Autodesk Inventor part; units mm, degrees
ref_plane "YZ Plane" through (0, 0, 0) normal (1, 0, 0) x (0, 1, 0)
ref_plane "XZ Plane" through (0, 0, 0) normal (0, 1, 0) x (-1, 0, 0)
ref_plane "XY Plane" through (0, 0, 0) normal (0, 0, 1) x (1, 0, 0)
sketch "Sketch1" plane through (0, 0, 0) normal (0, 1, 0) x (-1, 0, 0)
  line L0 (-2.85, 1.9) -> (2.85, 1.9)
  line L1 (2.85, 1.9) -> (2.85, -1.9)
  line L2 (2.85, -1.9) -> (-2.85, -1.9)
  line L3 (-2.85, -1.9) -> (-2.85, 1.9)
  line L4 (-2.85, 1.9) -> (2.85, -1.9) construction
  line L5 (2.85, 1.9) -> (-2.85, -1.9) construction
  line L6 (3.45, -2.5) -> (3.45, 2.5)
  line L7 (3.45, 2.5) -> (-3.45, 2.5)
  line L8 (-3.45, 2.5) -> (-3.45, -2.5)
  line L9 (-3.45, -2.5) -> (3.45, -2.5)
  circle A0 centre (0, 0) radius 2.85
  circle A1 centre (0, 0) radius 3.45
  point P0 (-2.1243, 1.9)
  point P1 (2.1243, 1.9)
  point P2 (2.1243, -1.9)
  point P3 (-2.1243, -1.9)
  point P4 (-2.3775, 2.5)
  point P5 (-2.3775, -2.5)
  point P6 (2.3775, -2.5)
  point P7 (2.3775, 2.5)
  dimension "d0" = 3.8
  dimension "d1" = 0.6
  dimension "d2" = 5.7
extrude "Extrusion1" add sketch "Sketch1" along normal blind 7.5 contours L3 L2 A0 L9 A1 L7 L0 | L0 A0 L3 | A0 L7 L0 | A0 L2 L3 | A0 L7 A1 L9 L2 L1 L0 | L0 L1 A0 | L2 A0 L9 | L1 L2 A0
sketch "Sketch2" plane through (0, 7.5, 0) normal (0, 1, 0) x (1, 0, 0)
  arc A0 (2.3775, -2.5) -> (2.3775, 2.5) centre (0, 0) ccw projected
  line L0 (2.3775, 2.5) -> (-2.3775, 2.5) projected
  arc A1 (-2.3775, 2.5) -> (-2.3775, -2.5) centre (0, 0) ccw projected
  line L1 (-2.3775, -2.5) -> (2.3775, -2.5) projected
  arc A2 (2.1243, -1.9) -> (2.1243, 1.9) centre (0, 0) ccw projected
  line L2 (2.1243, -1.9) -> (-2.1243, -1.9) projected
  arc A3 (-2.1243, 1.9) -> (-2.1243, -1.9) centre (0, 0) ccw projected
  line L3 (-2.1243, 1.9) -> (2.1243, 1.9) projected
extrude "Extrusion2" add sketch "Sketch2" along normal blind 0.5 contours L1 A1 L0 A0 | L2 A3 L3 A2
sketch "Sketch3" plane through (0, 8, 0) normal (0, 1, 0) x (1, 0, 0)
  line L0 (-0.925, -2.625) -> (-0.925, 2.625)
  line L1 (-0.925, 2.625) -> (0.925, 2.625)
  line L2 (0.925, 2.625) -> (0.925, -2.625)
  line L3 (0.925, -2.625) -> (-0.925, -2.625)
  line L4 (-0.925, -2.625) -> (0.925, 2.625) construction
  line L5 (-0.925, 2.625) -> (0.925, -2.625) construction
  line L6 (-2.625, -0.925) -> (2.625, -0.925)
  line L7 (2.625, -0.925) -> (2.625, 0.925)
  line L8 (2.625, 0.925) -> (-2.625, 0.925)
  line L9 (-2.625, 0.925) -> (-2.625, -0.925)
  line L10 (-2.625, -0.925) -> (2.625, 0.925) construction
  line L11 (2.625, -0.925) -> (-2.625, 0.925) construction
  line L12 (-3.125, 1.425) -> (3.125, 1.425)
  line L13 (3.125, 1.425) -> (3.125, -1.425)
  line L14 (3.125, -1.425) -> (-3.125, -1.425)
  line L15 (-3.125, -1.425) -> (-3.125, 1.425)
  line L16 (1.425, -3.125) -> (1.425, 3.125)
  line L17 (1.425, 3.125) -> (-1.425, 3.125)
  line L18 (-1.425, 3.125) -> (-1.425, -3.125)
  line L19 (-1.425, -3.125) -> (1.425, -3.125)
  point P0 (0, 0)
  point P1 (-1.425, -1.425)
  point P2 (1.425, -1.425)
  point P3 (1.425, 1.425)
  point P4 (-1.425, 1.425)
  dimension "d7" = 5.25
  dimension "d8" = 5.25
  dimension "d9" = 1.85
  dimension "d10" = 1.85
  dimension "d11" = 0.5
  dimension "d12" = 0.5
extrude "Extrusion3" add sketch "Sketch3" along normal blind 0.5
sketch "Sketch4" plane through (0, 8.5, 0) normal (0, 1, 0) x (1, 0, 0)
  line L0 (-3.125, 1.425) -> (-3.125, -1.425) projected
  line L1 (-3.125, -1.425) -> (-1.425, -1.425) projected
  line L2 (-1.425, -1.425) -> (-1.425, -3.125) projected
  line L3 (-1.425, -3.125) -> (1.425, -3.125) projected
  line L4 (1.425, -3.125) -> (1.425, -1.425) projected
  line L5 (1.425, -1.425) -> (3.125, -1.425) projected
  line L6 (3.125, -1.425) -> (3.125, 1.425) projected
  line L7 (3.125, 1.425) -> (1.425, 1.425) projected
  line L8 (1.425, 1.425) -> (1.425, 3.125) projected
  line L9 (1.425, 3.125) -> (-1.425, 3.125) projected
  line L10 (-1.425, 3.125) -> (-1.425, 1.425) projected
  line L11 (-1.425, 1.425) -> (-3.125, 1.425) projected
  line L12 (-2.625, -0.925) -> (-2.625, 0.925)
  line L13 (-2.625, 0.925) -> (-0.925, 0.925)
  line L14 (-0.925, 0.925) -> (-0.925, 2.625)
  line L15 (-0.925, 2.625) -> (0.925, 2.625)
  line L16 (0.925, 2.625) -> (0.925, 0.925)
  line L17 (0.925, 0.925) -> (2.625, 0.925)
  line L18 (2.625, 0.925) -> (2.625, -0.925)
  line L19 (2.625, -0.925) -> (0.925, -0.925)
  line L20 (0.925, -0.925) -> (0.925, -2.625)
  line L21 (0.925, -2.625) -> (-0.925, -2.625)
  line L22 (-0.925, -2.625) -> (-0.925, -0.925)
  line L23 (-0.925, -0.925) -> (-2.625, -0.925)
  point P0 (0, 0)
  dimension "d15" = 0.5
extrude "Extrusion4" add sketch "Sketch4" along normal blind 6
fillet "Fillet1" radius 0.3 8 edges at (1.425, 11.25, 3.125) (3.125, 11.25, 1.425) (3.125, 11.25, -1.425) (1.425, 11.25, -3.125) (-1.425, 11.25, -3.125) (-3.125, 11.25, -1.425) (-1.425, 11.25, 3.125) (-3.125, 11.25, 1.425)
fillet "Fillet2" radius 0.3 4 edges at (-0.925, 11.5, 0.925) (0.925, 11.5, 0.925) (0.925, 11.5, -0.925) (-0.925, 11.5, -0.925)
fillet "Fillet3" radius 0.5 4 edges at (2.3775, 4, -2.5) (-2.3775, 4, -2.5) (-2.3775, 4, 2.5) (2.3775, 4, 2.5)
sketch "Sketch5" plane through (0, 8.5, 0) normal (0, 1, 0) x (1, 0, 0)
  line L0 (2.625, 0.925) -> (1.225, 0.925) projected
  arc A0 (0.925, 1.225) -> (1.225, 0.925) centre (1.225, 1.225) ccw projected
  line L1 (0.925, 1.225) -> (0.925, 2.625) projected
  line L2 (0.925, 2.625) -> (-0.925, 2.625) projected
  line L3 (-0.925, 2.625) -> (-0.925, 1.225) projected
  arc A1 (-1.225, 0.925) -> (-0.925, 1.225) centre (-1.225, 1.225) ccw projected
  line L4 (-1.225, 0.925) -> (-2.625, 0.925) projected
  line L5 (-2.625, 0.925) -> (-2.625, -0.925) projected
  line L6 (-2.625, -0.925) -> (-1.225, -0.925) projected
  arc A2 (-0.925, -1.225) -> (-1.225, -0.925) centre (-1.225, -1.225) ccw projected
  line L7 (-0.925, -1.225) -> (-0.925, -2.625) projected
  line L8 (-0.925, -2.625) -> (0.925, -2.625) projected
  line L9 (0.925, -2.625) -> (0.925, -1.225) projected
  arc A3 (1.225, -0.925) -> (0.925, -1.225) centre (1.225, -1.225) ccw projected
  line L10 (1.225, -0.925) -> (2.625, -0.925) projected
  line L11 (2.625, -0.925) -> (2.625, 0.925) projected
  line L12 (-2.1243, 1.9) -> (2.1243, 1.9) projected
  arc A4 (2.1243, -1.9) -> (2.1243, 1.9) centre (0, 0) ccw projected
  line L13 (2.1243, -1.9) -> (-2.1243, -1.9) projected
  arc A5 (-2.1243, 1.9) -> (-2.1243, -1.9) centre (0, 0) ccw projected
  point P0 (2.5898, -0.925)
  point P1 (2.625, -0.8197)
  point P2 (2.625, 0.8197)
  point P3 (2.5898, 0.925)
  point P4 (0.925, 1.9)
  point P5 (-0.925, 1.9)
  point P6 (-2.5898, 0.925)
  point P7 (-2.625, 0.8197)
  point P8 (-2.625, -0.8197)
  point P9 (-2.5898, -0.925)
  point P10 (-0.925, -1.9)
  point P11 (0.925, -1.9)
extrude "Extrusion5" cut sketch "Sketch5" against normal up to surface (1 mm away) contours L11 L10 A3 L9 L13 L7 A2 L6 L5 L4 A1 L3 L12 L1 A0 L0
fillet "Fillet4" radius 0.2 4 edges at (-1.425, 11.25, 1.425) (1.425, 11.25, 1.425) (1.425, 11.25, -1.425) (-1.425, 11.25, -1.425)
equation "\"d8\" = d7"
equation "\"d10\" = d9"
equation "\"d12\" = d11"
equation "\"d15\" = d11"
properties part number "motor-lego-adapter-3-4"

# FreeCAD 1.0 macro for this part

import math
import FreeCAD as App
import Part
import Sketcher


def edges_at(feature, points):
    """Names of the edges that pass closest to the given points."""
    edges = feature.Shape.Edges
    near = lambda p: min(range(len(edges)), key=lambda i: edges[i].distToShape(Part.Vertex(*p))[0])
    return sorted({f"Edge{near(p) + 1}" for p in points})


def add_polygon(sketch, points):
    """Adds a closed chain of lines whose ends are joined by coincident constraints."""
    first, n = sketch.GeometryCount, len(points)
    for a, b in zip(points, points[1:] + points[:1]):
        sketch.addGeometry(Part.LineSegment(App.Vector(*a, 0), App.Vector(*b, 0)), False)
    for i in range(n):
        sketch.addConstraint(Sketcher.Constraint("Coincident", first + i, 2, first + (i + 1) % n, 1))

doc = App.newDocument("Part")
body = doc.addObject("PartDesign::Body", "Body")

# Sketch on XZ plane
sketch1 = body.newObject("Sketcher::SketchObject", "Sketch")
sketch1.AttachmentSupport = (doc.getObject("XZ_Plane"), [""])
sketch1.MapMode = "FlatFace"
sketch1.addGeometry(Part.LineSegment(App.Vector(2.4, -2.5, 0), App.Vector(-2.4, -2.5, 0)), False)
sketch1.addGeometry(Part.ArcOfCircle(Part.Circle(App.Vector(0, 0, 0), App.Vector(0, 0, 1), 3.5), math.radians(134), math.radians(226)), False)
sketch1.addGeometry(Part.LineSegment(App.Vector(-2.4, 2.5, 0), App.Vector(2.4, 2.5, 0)), False)
sketch1.addGeometry(Part.ArcOfCircle(Part.Circle(App.Vector(0, 0, 0), App.Vector(0, 0, 1), 3.5), math.radians(-46), math.radians(46)), False)
sketch1.addGeometry(Part.LineSegment(App.Vector(2.1, 1.9, 0), App.Vector(-2.1, 1.9, 0)), False)
sketch1.addGeometry(Part.ArcOfCircle(Part.Circle(App.Vector(0, 0, 0), App.Vector(0, 0, 1), 2.9), math.radians(138), math.radians(222)), False)
sketch1.addGeometry(Part.LineSegment(App.Vector(-2.1, -1.9, 0), App.Vector(2.1, -1.9, 0)), False)
sketch1.addGeometry(Part.ArcOfCircle(Part.Circle(App.Vector(0, 0, 0), App.Vector(0, 0, 1), 2.9), math.radians(-42), math.radians(42)), False)
sketch1.addConstraint(Sketcher.Constraint("Coincident", 0, 2, 1, 2))
sketch1.addConstraint(Sketcher.Constraint("Coincident", 1, 1, 2, 1))
sketch1.addConstraint(Sketcher.Constraint("Coincident", 2, 2, 3, 2))
sketch1.addConstraint(Sketcher.Constraint("Coincident", 3, 1, 0, 1))
sketch1.addConstraint(Sketcher.Constraint("Coincident", 4, 2, 5, 1))
sketch1.addConstraint(Sketcher.Constraint("Coincident", 5, 2, 6, 1))
sketch1.addConstraint(Sketcher.Constraint("Coincident", 6, 2, 7, 1))
sketch1.addConstraint(Sketcher.Constraint("Coincident", 7, 2, 4, 1))
sketch1.addConstraint(Sketcher.Constraint("Horizontal", 0))
sketch1.addConstraint(Sketcher.Constraint("Horizontal", 2))
sketch1.addConstraint(Sketcher.Constraint("Horizontal", 4))
sketch1.addConstraint(Sketcher.Constraint("Horizontal", 6))
sketch1.addConstraint(Sketcher.Constraint("Coincident", 1, 3, -1, 1))
sketch1.addConstraint(Sketcher.Constraint("Coincident", 3, 3, -1, 1))
sketch1.addConstraint(Sketcher.Constraint("Coincident", 5, 3, -1, 1))
sketch1.addConstraint(Sketcher.Constraint("Coincident", 7, 3, -1, 1))
sketch1.addConstraint(Sketcher.Constraint("Equal", 1, 3))
sketch1.addConstraint(Sketcher.Constraint("Equal", 5, 7))
sketch1.addConstraint(Sketcher.Constraint("Vertical", 0, 2, 1, 1))
sketch1.addConstraint(Sketcher.Constraint("Vertical", 4, 2, 5, 2))
sketch1.addConstraint(Sketcher.Constraint("Radius", 5, 2.85))
sketch1.addConstraint(Sketcher.Constraint("DistanceY", 4, 2, 1, 1, 0.6))
sketch1.addConstraint(Sketcher.Constraint("Radius", 1, 3.45))
sketch1.addConstraint(Sketcher.Constraint("DistanceY", 0, 2, 1, 1, 5.0))
pad1 = body.newObject("PartDesign::Pad", "Pad")
pad1.Profile = sketch1
pad1.Length = 7.5
pad1.Reversed = True

# Sketch on XZ plane
sketch2 = body.newObject("Sketcher::SketchObject", "Sketch001")
sketch2.AttachmentSupport = (doc.getObject("XZ_Plane"), [""])
sketch2.MapMode = "FlatFace"
sketch2.AttachmentOffset = App.Placement(App.Vector(0, 0, -7.5), App.Rotation())
sketch2.addGeometry(Part.LineSegment(App.Vector(-2.4, 2.5, 0), App.Vector(2.4, 2.5, 0)), False)
sketch2.addGeometry(Part.ArcOfCircle(Part.Circle(App.Vector(0, 0, 0), App.Vector(0, 0, 1), 3.5), math.radians(-46), math.radians(46)), False)
sketch2.addGeometry(Part.LineSegment(App.Vector(2.4, -2.5, 0), App.Vector(-2.4, -2.5, 0)), False)
sketch2.addGeometry(Part.ArcOfCircle(Part.Circle(App.Vector(0, 0, 0), App.Vector(0, 0, 1), 3.5), math.radians(134), math.radians(226)), False)
sketch2.addConstraint(Sketcher.Constraint("Coincident", 0, 2, 1, 2))
sketch2.addConstraint(Sketcher.Constraint("Coincident", 1, 1, 2, 1))
sketch2.addConstraint(Sketcher.Constraint("Coincident", 2, 2, 3, 2))
sketch2.addConstraint(Sketcher.Constraint("Coincident", 3, 1, 0, 1))
sketch2.addConstraint(Sketcher.Constraint("Horizontal", 0))
sketch2.addConstraint(Sketcher.Constraint("Horizontal", 2))
sketch2.addConstraint(Sketcher.Constraint("Coincident", 1, 3, -1, 1))
sketch2.addConstraint(Sketcher.Constraint("Coincident", 3, 3, -1, 1))
sketch2.addConstraint(Sketcher.Constraint("Equal", 1, 3))
sketch2.addConstraint(Sketcher.Constraint("Vertical", 0, 2, 1, 1))
sketch2.addConstraint(Sketcher.Constraint("Radius", 1, 3.45))
sketch2.addConstraint(Sketcher.Constraint("DistanceY", 1, 1, 0, 2, 5.0))
pad2 = body.newObject("PartDesign::Pad", "Pad001")
pad2.Profile = sketch2
pad2.Length = 0.5
pad2.Reversed = True

# Sketch on XZ plane
sketch3 = body.newObject("Sketcher::SketchObject", "Sketch002")
sketch3.AttachmentSupport = (doc.getObject("XZ_Plane"), [""])
sketch3.MapMode = "FlatFace"
sketch3.AttachmentOffset = App.Placement(App.Vector(0, 0, -8), App.Rotation())
add_polygon(sketch3, [(1.4, 3.1), (1.4, 1.4), (3.1, 1.4), (3.1, -1.4), (1.4, -1.4), (1.4, -3.1), (-1.4, -3.1), (-1.4, -1.4), (-3.1, -1.4), (-3.1, 1.4), (-1.4, 1.4), (-1.4, 3.1)])  # lines 0-11
sketch3.addConstraint(Sketcher.Constraint("Vertical", 0))
sketch3.addConstraint(Sketcher.Constraint("Horizontal", 1))
sketch3.addConstraint(Sketcher.Constraint("Vertical", 2))
sketch3.addConstraint(Sketcher.Constraint("Horizontal", 3))
sketch3.addConstraint(Sketcher.Constraint("Vertical", 4))
sketch3.addConstraint(Sketcher.Constraint("Horizontal", 5))
sketch3.addConstraint(Sketcher.Constraint("Vertical", 6))
sketch3.addConstraint(Sketcher.Constraint("Horizontal", 7))
sketch3.addConstraint(Sketcher.Constraint("Vertical", 8))
sketch3.addConstraint(Sketcher.Constraint("Horizontal", 9))
sketch3.addConstraint(Sketcher.Constraint("Vertical", 10))
sketch3.addConstraint(Sketcher.Constraint("Horizontal", 11))
sketch3.addConstraint(Sketcher.Constraint("Symmetric", 0, 2, 6, 2, -1, 1))
sketch3.addConstraint(Sketcher.Constraint("Symmetric", 2, 2, 8, 2, -1, 1))
sketch3.addConstraint(Sketcher.Constraint("Symmetric", 4, 2, 10, 2, -1, 1))
sketch3.addConstraint(Sketcher.Constraint("Symmetric", 3, 2, 6, 2, -2))
sketch3.addConstraint(Sketcher.Constraint("Equal", 9, 0))
sketch3.addConstraint(Sketcher.Constraint("Equal", 11, 2))
sketch3.addConstraint(Sketcher.Constraint("DistanceX", 1, 1, 1, 2, 1.7))
sketch3.addConstraint(Sketcher.Constraint("DistanceX", 5, 2, 5, 1, 2.85))
pad3 = body.newObject("PartDesign::Pad", "Pad002")
pad3.Profile = sketch3
pad3.Length = 0.5
pad3.Reversed = True

# Sketch on XZ plane
sketch4 = body.newObject("Sketcher::SketchObject", "Sketch003")
sketch4.AttachmentSupport = (doc.getObject("XZ_Plane"), [""])
sketch4.MapMode = "FlatFace"
sketch4.AttachmentOffset = App.Placement(App.Vector(0, 0, -8.5), App.Rotation())
add_polygon(sketch4, [(-1.4, -1.4), (-3.1, -1.4), (-3.1, 1.4), (-1.4, 1.4), (-1.4, 3.1), (1.4, 3.1), (1.4, 1.4), (3.1, 1.4), (3.1, -1.4), (1.4, -1.4), (1.4, -3.1), (-1.4, -3.1)])  # lines 0-11
add_polygon(sketch4, [(-0.9, 0.9), (-2.6, 0.9), (-2.6, -0.9), (-0.9, -0.9), (-0.9, -2.6), (0.9, -2.6), (0.9, -0.9), (2.6, -0.9), (2.6, 0.9), (0.9, 0.9), (0.9, 2.6), (-0.9, 2.6)])  # lines 12-23
sketch4.addConstraint(Sketcher.Constraint("Horizontal", 0))
sketch4.addConstraint(Sketcher.Constraint("Vertical", 1))
sketch4.addConstraint(Sketcher.Constraint("Horizontal", 2))
sketch4.addConstraint(Sketcher.Constraint("Vertical", 3))
sketch4.addConstraint(Sketcher.Constraint("Horizontal", 4))
sketch4.addConstraint(Sketcher.Constraint("Vertical", 5))
sketch4.addConstraint(Sketcher.Constraint("Horizontal", 6))
sketch4.addConstraint(Sketcher.Constraint("Vertical", 7))
sketch4.addConstraint(Sketcher.Constraint("Horizontal", 8))
sketch4.addConstraint(Sketcher.Constraint("Vertical", 9))
sketch4.addConstraint(Sketcher.Constraint("Horizontal", 10))
sketch4.addConstraint(Sketcher.Constraint("Vertical", 11))
sketch4.addConstraint(Sketcher.Constraint("Horizontal", 12))
sketch4.addConstraint(Sketcher.Constraint("Vertical", 13))
sketch4.addConstraint(Sketcher.Constraint("Horizontal", 14))
sketch4.addConstraint(Sketcher.Constraint("Vertical", 15))
sketch4.addConstraint(Sketcher.Constraint("Horizontal", 16))
sketch4.addConstraint(Sketcher.Constraint("Vertical", 17))
sketch4.addConstraint(Sketcher.Constraint("Horizontal", 18))
sketch4.addConstraint(Sketcher.Constraint("Vertical", 19))
sketch4.addConstraint(Sketcher.Constraint("Horizontal", 20))
sketch4.addConstraint(Sketcher.Constraint("Vertical", 21))
sketch4.addConstraint(Sketcher.Constraint("Horizontal", 22))
sketch4.addConstraint(Sketcher.Constraint("Vertical", 23))
sketch4.addConstraint(Sketcher.Constraint("Symmetric", 0, 2, 6, 2, -1, 1))
sketch4.addConstraint(Sketcher.Constraint("Symmetric", 2, 2, 8, 2, -1, 1))
sketch4.addConstraint(Sketcher.Constraint("Symmetric", 4, 2, 10, 2, -1, 1))
sketch4.addConstraint(Sketcher.Constraint("Symmetric", 12, 2, 18, 2, -1, 1))
sketch4.addConstraint(Sketcher.Constraint("Symmetric", 14, 2, 20, 2, -1, 1))
sketch4.addConstraint(Sketcher.Constraint("Symmetric", 16, 2, 22, 2, -1, 1))
sketch4.addConstraint(Sketcher.Constraint("Symmetric", 2, 2, 5, 2, -2))
sketch4.addConstraint(Sketcher.Constraint("Symmetric", 14, 2, 17, 2, -2))
sketch4.addConstraint(Sketcher.Constraint("Equal", 8, 12))
sketch4.addConstraint(Sketcher.Constraint("Equal", 10, 1))
sketch4.addConstraint(Sketcher.Constraint("Equal", 20, 3))
sketch4.addConstraint(Sketcher.Constraint("Equal", 22, 13))
sketch4.addConstraint(Sketcher.Constraint("Equal", 11, 15))
sketch4.addConstraint(Sketcher.Constraint("DistanceX", 1, 2, 12, 2, 0.5))
sketch4.addConstraint(Sketcher.Constraint("DistanceX", 0, 2, 0, 1, 1.7))
sketch4.addConstraint(Sketcher.Constraint("DistanceX", 4, 1, 4, 2, 2.85))
pad4 = body.newObject("PartDesign::Pad", "Pad003")
pad4.Profile = sketch4
pad4.Length = 6
pad4.Reversed = True
doc.recompute()

fillet = body.newObject("PartDesign::Fillet", "Fillet")
fillet.Base = (pad4, edges_at(pad4, [
    (1.425, 11.25, 3.125),
    (3.125, 11.25, 1.425),
    (3.125, 11.25, -1.425),
    (1.425, 11.25, -3.125),
    (-1.425, 11.25, -3.125),
    (-3.125, 11.25, -1.425),
    (-1.425, 11.25, 3.125),
    (-3.125, 11.25, 1.425),
]))
fillet.Radius = 0.3
doc.recompute()

fillet2 = body.newObject("PartDesign::Fillet", "Fillet001")
fillet2.Base = (fillet, edges_at(fillet, [
    (-0.925, 11.5, 0.925),
    (0.925, 11.5, 0.925),
    (0.925, 11.5, -0.925),
    (-0.925, 11.5, -0.925),
]))
fillet2.Radius = 0.3
doc.recompute()

fillet3 = body.newObject("PartDesign::Fillet", "Fillet002")
fillet3.Base = (fillet2, edges_at(fillet2, [
    (2.377, 4, -2.5),
    (-2.377, 4, -2.5),
    (-2.377, 4, 2.5),
    (2.377, 4, 2.5),
]))
fillet3.Radius = 0.5

# Sketch on XZ plane
sketch5 = body.newObject("Sketcher::SketchObject", "Sketch004")
sketch5.AttachmentSupport = (doc.getObject("XZ_Plane"), [""])
sketch5.MapMode = "FlatFace"
sketch5.AttachmentOffset = App.Placement(App.Vector(0, 0, -8.5), App.Rotation())
sketch5.addGeometry(Part.LineSegment(App.Vector(2.62, 0.93, 0), App.Vector(2.62, -0.93, 0)), False)
sketch5.addGeometry(Part.LineSegment(App.Vector(2.62, -0.93, 0), App.Vector(1.23, -0.93, 0)), False)
sketch5.addGeometry(Part.ArcOfCircle(Part.Circle(App.Vector(1.23, -1.23, 0), App.Vector(0, 0, 1), 0.3), math.radians(90), math.radians(180)), False)
sketch5.addGeometry(Part.LineSegment(App.Vector(0.93, -1.23, 0), App.Vector(0.93, -1.9, 0)), False)
sketch5.addGeometry(Part.LineSegment(App.Vector(0.93, -1.9, 0), App.Vector(-0.93, -1.9, 0)), False)
sketch5.addGeometry(Part.LineSegment(App.Vector(-0.93, -1.9, 0), App.Vector(-0.93, -1.23, 0)), False)
sketch5.addGeometry(Part.ArcOfCircle(Part.Circle(App.Vector(-1.23, -1.23, 0), App.Vector(0, 0, 1), 0.3), math.radians(0), math.radians(90)), False)
sketch5.addGeometry(Part.LineSegment(App.Vector(-1.23, -0.93, 0), App.Vector(-2.62, -0.93, 0)), False)
sketch5.addGeometry(Part.LineSegment(App.Vector(-2.62, -0.93, 0), App.Vector(-2.62, 0.93, 0)), False)
sketch5.addGeometry(Part.LineSegment(App.Vector(-2.62, 0.93, 0), App.Vector(-1.23, 0.93, 0)), False)
sketch5.addGeometry(Part.ArcOfCircle(Part.Circle(App.Vector(-1.23, 1.23, 0), App.Vector(0, 0, 1), 0.3), math.radians(-90), math.radians(0)), False)
sketch5.addGeometry(Part.LineSegment(App.Vector(-0.93, 1.23, 0), App.Vector(-0.93, 1.9, 0)), False)
sketch5.addGeometry(Part.LineSegment(App.Vector(-0.93, 1.9, 0), App.Vector(0.93, 1.9, 0)), False)
sketch5.addGeometry(Part.LineSegment(App.Vector(0.93, 1.9, 0), App.Vector(0.93, 1.23, 0)), False)
sketch5.addGeometry(Part.ArcOfCircle(Part.Circle(App.Vector(1.23, 1.23, 0), App.Vector(0, 0, 1), 0.3), math.radians(180), math.radians(270)), False)
sketch5.addGeometry(Part.LineSegment(App.Vector(1.23, 0.93, 0), App.Vector(2.62, 0.93, 0)), False)
sketch5.addConstraint(Sketcher.Constraint("Coincident", 0, 2, 1, 1))
sketch5.addConstraint(Sketcher.Constraint("Tangent", 1, 2, 2, 1))
sketch5.addConstraint(Sketcher.Constraint("Tangent", 2, 2, 3, 1))
sketch5.addConstraint(Sketcher.Constraint("Coincident", 3, 2, 4, 1))
sketch5.addConstraint(Sketcher.Constraint("Coincident", 4, 2, 5, 1))
sketch5.addConstraint(Sketcher.Constraint("Tangent", 5, 2, 6, 1))
sketch5.addConstraint(Sketcher.Constraint("Tangent", 6, 2, 7, 1))
sketch5.addConstraint(Sketcher.Constraint("Coincident", 7, 2, 8, 1))
sketch5.addConstraint(Sketcher.Constraint("Coincident", 8, 2, 9, 1))
sketch5.addConstraint(Sketcher.Constraint("Tangent", 9, 2, 10, 1))
sketch5.addConstraint(Sketcher.Constraint("Tangent", 10, 2, 11, 1))
sketch5.addConstraint(Sketcher.Constraint("Coincident", 11, 2, 12, 1))
sketch5.addConstraint(Sketcher.Constraint("Coincident", 12, 2, 13, 1))
sketch5.addConstraint(Sketcher.Constraint("Tangent", 13, 2, 14, 1))
sketch5.addConstraint(Sketcher.Constraint("Tangent", 14, 2, 15, 1))
sketch5.addConstraint(Sketcher.Constraint("Coincident", 15, 2, 0, 1))
sketch5.addConstraint(Sketcher.Constraint("Vertical", 0))
sketch5.addConstraint(Sketcher.Constraint("Horizontal", 1))
sketch5.addConstraint(Sketcher.Constraint("Vertical", 3))
sketch5.addConstraint(Sketcher.Constraint("Horizontal", 4))
sketch5.addConstraint(Sketcher.Constraint("Vertical", 5))
sketch5.addConstraint(Sketcher.Constraint("Horizontal", 7))
sketch5.addConstraint(Sketcher.Constraint("Vertical", 8))
sketch5.addConstraint(Sketcher.Constraint("Horizontal", 9))
sketch5.addConstraint(Sketcher.Constraint("Vertical", 11))
sketch5.addConstraint(Sketcher.Constraint("Horizontal", 12))
sketch5.addConstraint(Sketcher.Constraint("Vertical", 13))
sketch5.addConstraint(Sketcher.Constraint("Horizontal", 15))
sketch5.addConstraint(Sketcher.Constraint("Equal", 2, 6))
sketch5.addConstraint(Sketcher.Constraint("Equal", 6, 10))
sketch5.addConstraint(Sketcher.Constraint("Equal", 10, 14))
sketch5.addConstraint(Sketcher.Constraint("Symmetric", 2, 3, 10, 3, -1, 1))
sketch5.addConstraint(Sketcher.Constraint("Symmetric", 6, 3, 14, 3, -1, 1))
sketch5.addConstraint(Sketcher.Constraint("Symmetric", 2, 3, 6, 3, -2))
sketch5.addConstraint(Sketcher.Constraint("Equal", 1, 7))
sketch5.addConstraint(Sketcher.Constraint("Equal", 12, 0))
sketch5.addConstraint(Sketcher.Constraint("Equal", 5, 11))
sketch5.addConstraint(Sketcher.Constraint("Radius", 2, 0.3))
sketch5.addConstraint(Sketcher.Constraint("DistanceX", 1, 2, 1, 1, 1.4))
sketch5.addConstraint(Sketcher.Constraint("DistanceX", 4, 2, 4, 1, 1.85))
sketch5.addConstraint(Sketcher.Constraint("DistanceY", 3, 2, -1, 1, 1.9))
pocket1 = body.newObject("PartDesign::Pocket", "Pocket")
pocket1.Profile = sketch5
pocket1.Length = 1
pocket1.Reversed = True
doc.recompute()

fillet4 = body.newObject("PartDesign::Fillet", "Fillet003")
fillet4.Base = (pocket1, edges_at(pocket1, [
    (-1.425, 11.25, 1.425),
    (1.425, 11.25, 1.425),
    (1.425, 11.25, -1.425),
    (-1.425, 11.25, -1.425),
]))
fillet4.Radius = 0.2

doc.recompute()
